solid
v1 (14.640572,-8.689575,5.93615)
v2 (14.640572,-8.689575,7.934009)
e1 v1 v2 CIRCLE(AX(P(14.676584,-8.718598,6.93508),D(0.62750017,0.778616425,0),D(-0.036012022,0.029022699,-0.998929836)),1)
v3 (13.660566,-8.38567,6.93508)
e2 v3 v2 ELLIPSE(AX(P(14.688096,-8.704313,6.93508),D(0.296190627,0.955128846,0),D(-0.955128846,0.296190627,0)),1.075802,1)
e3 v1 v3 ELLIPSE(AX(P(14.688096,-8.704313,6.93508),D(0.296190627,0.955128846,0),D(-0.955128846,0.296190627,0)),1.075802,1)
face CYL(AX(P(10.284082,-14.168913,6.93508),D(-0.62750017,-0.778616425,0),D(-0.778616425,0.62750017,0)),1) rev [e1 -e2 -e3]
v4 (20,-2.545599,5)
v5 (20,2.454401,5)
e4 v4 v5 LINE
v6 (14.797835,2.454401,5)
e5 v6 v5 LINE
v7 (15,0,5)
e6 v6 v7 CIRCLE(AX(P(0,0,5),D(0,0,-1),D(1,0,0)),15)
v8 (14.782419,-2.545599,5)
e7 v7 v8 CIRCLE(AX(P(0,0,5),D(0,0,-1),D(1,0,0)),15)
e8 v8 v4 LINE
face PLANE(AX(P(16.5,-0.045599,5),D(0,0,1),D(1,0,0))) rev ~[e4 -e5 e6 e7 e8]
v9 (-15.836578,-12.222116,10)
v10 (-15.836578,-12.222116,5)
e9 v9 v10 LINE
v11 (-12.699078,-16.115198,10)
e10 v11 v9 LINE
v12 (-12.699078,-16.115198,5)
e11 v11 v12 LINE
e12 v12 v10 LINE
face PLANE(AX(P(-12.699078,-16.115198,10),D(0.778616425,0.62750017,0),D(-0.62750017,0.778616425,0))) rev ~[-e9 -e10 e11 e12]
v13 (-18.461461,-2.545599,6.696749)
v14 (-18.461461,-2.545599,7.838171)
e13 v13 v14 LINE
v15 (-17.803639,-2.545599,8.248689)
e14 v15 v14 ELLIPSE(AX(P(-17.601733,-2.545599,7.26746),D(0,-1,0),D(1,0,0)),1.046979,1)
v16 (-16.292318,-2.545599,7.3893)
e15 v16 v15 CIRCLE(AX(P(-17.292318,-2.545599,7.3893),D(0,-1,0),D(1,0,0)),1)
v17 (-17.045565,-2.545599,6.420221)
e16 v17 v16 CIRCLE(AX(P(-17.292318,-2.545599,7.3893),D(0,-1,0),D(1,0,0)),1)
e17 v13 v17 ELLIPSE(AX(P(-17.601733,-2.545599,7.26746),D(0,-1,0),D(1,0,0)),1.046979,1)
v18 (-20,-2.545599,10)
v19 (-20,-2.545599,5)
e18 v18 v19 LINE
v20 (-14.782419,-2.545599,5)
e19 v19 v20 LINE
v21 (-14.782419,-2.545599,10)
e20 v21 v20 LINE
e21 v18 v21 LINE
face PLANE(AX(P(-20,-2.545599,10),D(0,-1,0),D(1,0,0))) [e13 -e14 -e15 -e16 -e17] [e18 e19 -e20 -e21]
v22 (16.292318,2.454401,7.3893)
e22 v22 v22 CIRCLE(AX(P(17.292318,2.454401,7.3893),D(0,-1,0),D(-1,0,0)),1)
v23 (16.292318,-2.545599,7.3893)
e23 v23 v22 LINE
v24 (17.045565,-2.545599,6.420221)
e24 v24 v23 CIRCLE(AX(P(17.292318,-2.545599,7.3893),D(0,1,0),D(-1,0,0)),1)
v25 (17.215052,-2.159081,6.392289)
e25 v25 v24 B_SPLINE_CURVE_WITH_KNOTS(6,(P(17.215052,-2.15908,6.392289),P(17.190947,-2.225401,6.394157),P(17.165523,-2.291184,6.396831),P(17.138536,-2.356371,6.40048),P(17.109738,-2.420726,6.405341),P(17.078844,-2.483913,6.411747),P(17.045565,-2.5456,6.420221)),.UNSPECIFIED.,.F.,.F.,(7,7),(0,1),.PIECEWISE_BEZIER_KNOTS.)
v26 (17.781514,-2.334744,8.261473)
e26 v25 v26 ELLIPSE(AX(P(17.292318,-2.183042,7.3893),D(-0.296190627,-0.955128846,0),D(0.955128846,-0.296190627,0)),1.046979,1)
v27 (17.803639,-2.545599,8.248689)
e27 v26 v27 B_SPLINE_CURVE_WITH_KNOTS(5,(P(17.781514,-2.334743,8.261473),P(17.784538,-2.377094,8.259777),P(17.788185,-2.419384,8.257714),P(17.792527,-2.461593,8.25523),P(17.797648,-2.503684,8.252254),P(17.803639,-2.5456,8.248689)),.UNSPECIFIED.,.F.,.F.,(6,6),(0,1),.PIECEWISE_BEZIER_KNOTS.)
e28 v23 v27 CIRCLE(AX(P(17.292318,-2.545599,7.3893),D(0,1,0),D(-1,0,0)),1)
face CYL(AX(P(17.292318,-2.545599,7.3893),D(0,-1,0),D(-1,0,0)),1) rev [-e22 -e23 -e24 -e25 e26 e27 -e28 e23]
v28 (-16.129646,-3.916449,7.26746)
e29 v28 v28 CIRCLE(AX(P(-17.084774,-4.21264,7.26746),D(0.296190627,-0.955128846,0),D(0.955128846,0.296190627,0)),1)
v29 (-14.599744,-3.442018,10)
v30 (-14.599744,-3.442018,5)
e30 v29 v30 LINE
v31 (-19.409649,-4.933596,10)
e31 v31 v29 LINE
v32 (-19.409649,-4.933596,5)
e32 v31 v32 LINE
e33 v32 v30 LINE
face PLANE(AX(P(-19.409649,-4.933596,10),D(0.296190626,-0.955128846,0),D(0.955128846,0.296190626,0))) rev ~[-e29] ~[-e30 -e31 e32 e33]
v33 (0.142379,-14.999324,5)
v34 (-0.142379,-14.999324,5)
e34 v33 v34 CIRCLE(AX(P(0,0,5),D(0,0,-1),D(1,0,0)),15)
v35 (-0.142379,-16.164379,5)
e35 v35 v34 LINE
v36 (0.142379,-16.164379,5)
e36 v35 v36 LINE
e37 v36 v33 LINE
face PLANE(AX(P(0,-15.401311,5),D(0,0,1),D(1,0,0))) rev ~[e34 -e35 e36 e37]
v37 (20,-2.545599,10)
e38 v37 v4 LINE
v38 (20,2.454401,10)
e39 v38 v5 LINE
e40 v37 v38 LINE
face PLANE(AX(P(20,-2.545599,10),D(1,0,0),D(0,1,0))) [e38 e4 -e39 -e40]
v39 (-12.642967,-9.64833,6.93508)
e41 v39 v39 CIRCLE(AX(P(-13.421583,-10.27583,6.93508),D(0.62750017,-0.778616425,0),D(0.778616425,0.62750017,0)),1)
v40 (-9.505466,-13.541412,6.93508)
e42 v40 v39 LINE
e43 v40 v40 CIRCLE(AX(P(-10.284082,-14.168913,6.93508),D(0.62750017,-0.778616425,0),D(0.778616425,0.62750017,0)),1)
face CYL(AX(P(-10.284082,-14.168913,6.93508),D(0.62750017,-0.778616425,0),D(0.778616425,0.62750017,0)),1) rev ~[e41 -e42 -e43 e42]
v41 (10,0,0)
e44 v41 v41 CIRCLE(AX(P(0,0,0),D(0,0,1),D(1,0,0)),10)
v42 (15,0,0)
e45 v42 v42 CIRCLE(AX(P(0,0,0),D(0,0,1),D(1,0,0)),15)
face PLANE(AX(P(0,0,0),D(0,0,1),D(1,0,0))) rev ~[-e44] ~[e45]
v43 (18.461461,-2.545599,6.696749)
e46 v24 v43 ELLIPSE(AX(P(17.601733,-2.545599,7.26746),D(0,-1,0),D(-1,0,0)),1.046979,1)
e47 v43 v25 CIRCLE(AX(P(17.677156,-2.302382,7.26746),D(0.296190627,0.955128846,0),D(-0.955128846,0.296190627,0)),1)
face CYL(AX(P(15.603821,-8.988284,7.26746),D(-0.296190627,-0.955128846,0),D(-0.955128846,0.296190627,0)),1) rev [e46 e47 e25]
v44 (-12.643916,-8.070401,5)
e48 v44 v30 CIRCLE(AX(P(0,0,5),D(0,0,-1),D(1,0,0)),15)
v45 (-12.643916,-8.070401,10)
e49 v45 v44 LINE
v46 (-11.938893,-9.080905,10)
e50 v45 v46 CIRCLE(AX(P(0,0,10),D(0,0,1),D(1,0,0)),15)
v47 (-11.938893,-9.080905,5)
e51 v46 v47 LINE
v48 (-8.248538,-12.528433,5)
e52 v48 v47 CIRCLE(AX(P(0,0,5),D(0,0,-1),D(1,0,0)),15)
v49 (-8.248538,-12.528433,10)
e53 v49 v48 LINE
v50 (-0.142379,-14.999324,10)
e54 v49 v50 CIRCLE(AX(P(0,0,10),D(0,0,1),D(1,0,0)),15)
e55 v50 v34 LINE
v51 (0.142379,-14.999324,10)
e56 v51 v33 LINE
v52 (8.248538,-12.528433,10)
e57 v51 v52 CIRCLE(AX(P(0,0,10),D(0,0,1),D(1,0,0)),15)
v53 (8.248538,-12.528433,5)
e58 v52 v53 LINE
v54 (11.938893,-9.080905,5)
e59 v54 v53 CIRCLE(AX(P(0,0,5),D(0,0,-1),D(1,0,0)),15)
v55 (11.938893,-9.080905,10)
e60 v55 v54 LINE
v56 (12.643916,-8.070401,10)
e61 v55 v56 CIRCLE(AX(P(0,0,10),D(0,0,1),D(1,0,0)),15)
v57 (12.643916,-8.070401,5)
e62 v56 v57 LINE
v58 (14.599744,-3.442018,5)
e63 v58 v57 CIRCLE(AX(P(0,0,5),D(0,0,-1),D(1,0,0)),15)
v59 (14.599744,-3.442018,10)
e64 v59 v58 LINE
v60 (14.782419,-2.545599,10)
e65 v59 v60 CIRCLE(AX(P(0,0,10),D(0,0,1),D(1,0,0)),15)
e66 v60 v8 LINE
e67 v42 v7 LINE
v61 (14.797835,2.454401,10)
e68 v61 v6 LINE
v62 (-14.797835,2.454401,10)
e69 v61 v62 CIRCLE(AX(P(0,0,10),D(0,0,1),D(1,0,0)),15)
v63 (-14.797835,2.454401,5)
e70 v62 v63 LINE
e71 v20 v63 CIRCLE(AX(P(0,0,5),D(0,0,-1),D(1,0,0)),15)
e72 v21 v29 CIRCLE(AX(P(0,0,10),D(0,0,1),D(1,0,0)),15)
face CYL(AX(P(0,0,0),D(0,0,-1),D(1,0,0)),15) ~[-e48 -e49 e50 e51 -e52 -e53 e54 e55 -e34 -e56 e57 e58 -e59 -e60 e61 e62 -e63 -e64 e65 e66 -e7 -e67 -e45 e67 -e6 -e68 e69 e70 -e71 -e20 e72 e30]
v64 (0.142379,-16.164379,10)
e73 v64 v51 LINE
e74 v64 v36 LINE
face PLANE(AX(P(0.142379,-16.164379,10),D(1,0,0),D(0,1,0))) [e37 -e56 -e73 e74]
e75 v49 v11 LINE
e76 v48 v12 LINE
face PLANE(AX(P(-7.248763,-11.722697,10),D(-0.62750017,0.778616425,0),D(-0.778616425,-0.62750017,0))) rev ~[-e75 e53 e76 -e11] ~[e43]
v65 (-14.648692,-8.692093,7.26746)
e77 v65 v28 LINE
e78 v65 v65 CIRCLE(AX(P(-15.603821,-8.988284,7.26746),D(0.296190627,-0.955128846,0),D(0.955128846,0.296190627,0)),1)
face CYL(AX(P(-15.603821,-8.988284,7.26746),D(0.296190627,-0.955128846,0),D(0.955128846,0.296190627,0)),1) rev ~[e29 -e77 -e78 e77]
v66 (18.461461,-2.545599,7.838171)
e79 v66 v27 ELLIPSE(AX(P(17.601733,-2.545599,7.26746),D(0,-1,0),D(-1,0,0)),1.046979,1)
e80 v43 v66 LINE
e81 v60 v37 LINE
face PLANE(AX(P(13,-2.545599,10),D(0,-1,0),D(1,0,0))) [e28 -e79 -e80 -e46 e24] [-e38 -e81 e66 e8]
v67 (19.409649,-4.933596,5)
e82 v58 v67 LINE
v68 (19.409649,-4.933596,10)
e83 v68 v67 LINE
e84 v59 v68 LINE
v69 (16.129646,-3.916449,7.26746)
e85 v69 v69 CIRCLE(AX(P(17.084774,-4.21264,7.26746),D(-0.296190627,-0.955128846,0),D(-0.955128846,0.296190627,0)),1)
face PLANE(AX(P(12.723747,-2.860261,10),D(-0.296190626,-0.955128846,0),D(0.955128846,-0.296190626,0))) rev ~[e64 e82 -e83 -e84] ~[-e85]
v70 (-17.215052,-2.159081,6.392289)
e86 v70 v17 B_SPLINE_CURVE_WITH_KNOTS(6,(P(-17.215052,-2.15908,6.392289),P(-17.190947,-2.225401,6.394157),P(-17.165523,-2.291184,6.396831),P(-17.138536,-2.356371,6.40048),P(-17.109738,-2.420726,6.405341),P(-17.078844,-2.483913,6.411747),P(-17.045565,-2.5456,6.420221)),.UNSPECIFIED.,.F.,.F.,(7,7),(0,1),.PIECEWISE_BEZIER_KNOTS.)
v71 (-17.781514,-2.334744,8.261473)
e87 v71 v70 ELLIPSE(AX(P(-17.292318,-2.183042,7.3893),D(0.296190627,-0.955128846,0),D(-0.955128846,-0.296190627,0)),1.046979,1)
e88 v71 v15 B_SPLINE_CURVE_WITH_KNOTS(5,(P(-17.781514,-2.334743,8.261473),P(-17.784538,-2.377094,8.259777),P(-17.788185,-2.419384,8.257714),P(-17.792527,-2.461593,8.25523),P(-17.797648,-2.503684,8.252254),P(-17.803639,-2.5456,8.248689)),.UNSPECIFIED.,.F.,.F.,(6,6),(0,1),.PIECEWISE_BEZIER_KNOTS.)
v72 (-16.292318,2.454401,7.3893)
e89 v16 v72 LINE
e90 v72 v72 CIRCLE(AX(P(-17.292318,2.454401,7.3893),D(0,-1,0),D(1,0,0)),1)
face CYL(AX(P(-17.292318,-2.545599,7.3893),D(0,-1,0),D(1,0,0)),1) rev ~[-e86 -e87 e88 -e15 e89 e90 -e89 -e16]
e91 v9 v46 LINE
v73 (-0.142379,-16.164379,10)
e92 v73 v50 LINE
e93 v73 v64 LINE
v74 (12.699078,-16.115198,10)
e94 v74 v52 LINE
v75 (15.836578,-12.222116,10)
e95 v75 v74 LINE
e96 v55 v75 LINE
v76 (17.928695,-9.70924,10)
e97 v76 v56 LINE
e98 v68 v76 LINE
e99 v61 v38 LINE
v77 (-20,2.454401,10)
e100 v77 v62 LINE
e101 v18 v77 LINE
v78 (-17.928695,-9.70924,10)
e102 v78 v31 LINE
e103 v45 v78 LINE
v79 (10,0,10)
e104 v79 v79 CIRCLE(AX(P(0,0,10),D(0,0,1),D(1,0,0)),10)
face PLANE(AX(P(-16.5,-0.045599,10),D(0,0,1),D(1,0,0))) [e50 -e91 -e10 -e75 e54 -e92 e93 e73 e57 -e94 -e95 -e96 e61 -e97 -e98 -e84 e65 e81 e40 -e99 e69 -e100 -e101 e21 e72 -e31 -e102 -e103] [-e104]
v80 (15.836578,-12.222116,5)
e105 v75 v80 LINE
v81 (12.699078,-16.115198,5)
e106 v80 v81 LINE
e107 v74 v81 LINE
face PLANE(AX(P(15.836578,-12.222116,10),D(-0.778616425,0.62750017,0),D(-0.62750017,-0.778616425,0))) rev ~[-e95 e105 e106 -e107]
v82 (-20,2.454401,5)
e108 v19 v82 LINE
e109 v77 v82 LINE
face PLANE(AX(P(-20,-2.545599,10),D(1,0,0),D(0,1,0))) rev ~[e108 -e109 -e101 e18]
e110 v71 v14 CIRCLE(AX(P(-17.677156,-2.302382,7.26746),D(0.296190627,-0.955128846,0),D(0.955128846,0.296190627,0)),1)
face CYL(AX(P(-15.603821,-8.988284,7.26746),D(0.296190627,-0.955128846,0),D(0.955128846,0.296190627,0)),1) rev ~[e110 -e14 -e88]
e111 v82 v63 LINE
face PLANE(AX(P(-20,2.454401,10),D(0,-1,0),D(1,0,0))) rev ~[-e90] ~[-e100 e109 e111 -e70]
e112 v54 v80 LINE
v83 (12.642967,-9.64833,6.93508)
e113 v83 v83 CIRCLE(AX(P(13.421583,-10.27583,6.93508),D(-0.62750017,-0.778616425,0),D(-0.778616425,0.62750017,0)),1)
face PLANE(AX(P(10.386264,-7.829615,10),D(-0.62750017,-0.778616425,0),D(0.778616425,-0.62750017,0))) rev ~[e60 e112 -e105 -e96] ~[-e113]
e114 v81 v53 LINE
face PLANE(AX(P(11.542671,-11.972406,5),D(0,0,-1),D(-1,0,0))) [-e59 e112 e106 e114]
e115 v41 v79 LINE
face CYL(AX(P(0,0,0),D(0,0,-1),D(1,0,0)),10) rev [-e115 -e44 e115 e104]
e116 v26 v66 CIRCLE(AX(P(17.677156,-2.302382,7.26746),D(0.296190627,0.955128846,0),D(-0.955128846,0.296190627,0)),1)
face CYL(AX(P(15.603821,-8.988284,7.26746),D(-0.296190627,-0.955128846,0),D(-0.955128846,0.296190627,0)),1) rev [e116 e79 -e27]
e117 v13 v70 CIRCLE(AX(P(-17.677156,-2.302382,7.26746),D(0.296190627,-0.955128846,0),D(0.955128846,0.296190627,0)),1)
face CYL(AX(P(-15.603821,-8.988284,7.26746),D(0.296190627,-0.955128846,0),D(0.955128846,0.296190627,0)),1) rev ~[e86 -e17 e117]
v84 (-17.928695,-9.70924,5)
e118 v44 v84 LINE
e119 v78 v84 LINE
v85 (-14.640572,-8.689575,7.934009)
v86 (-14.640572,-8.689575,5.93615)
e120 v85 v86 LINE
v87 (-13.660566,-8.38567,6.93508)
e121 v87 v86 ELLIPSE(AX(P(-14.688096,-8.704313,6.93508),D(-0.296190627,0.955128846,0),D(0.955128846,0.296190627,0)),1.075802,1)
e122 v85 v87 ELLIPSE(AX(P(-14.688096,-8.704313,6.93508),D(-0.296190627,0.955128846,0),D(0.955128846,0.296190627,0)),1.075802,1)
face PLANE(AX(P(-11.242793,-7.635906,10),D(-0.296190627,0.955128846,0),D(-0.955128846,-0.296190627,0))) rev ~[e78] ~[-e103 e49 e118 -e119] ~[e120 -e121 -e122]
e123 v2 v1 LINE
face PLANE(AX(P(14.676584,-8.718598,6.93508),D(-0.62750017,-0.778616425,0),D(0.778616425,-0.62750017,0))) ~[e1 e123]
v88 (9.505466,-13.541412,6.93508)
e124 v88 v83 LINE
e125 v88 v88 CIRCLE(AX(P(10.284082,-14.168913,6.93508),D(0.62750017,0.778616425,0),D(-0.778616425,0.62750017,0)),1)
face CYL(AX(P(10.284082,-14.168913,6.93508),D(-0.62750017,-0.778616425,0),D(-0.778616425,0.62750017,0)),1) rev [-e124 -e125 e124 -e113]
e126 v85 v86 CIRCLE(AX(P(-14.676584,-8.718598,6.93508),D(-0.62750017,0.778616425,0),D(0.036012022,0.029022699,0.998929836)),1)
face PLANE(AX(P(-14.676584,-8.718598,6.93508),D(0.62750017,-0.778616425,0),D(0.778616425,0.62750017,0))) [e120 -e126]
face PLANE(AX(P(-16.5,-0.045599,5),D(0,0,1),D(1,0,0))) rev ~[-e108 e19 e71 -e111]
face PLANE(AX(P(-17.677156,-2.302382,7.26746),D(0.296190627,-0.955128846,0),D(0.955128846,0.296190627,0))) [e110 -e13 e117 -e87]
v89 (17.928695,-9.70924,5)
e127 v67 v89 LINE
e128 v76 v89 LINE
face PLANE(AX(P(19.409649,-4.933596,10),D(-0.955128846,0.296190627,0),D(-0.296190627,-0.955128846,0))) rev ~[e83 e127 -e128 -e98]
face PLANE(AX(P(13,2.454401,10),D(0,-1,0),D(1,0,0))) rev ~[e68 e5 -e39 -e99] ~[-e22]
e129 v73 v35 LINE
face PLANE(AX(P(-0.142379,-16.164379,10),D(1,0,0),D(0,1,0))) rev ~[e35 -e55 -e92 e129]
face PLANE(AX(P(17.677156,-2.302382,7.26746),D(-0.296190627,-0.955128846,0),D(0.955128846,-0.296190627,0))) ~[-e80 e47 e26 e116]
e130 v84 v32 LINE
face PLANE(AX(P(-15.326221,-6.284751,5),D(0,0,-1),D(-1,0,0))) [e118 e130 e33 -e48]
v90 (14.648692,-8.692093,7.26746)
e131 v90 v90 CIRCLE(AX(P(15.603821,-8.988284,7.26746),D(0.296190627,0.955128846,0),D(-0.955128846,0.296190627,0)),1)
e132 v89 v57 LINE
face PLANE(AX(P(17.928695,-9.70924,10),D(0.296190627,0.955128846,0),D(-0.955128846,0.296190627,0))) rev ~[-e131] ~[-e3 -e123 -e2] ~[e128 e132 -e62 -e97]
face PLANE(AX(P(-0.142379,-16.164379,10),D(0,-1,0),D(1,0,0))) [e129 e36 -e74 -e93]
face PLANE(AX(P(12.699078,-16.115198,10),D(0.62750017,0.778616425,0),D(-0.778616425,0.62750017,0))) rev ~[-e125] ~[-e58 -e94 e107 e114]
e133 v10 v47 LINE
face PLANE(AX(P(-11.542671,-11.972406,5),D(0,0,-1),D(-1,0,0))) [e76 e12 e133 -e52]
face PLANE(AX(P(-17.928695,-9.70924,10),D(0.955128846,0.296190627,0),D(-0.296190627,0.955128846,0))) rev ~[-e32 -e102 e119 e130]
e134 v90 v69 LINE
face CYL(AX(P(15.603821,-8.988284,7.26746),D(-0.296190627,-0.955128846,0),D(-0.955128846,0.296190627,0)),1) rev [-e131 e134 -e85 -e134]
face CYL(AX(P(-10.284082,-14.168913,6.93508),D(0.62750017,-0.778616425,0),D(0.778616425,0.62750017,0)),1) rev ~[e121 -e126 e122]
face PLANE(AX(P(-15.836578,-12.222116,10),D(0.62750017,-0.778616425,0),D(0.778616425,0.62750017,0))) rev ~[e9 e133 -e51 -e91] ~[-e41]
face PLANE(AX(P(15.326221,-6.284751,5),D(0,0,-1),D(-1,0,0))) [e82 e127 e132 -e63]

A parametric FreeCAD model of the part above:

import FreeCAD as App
import Part
import Sketcher
Q = App.Units.Quantity


def add_polygon(sketch, points):
    """Adds a closed chain of lines whose ends are joined by coincident constraints."""
    first, n = sketch.GeometryCount, len(points)
    for a, b in zip(points, points[1:] + points[:1]):
        sketch.addGeometry(Part.LineSegment(App.Vector(*a, 0), App.Vector(*b, 0)), False)
    for i in range(n):
        sketch.addConstraint(Sketcher.Constraint("Coincident", first + i, 2, first + (i + 1) % n, 1))

doc = App.newDocument("Part")
body = doc.addObject("PartDesign::Body", "Body")

sketch1 = doc.addObject("Sketcher::SketchObject", "Sketch")
body.addObject(sketch1)
sketch1.AttachmentSupport = (doc.XY_Plane, [""])
sketch1.MapMode = "FlatFace"
sketch1.addGeometry([
    Part.Circle(App.Vector(0, 0, 0), App.Vector(0, 0, 1), 15),
    Part.Circle(App.Vector(0, 0, 0), App.Vector(0, 0, 1), 10),
], False)
sketch1.addConstraint([
    Sketcher.Constraint("Coincident", 0, 3, -1, 1),
    Sketcher.Constraint("Coincident", 1, 3, -1, 1),
    Sketcher.Constraint("Diameter", 0, Q("30 mm")),
    Sketcher.Constraint("Diameter", 1, Q("20 mm")),
])
pad1 = doc.addObject("PartDesign::Pad", "Pad")
body.addObject(pad1)
pad1.Profile = sketch1
pad1.Length = 10

sketch2 = doc.addObject("Sketcher::SketchObject", "Sketch001")
body.addObject(sketch2)
sketch2.AttachmentSupport = (doc.XY_Plane, [""])
sketch2.MapMode = "FlatFace"
sketch2.AttachmentOffset = App.Placement(App.Vector(0, 0, 10), App.Rotation())
add_polygon(sketch2, [(-20, 2.45), (-20, -2.55), (-13, -2.55), (-13, 2.45)])
add_polygon(sketch2, [(-11.24, -7.64), (-12.72, -2.86), (-19.41, -4.93), (-17.93, -9.71)])
add_polygon(sketch2, [(-7.25, -11.72), (-10.39, -7.83), (-15.84, -12.22), (-12.7, -16.12)])
add_polygon(sketch2, [(12.7, -16.12), (15.84, -12.22), (10.39, -7.83), (7.25, -11.72)])
add_polygon(sketch2, [(17.93, -9.71), (19.41, -4.93), (12.72, -2.86), (11.24, -7.64)])
add_polygon(sketch2, [(13, 2.45), (13, -2.55), (20, -2.55), (20, 2.45)])
add_polygon(sketch2, [(-0.14, -14.64), (-0.14, -16.16), (0.14, -16.16), (0.14, -14.64)])
sketch2.addConstraint([
    Sketcher.Constraint("Vertical", 0),
    Sketcher.Constraint("Horizontal", 1),
    Sketcher.Constraint("Vertical", 2),
    Sketcher.Constraint("Horizontal", 3),
    Sketcher.Constraint("Vertical", 20),
    Sketcher.Constraint("Horizontal", 21),
    Sketcher.Constraint("Vertical", 22),
    Sketcher.Constraint("Horizontal", 23),
    Sketcher.Constraint("Vertical", 24),
    Sketcher.Constraint("Horizontal", 25),
    Sketcher.Constraint("Vertical", 26),
    Sketcher.Constraint("Horizontal", 27),
    Sketcher.Constraint("Symmetric", 9, 2, 12, 2, -2),
    Sketcher.Constraint("Symmetric", 8, 2, 13, 2, -2),
    Sketcher.Constraint("Symmetric", 11, 2, 14, 2, -2),
    Sketcher.Constraint("Symmetric", 10, 2, 15, 2, -2),
    Sketcher.Constraint("Symmetric", 5, 2, 16, 2, -2),
    Sketcher.Constraint("Symmetric", 4, 2, 17, 2, -2),
    Sketcher.Constraint("Symmetric", 7, 2, 18, 2, -2),
    Sketcher.Constraint("Symmetric", 6, 2, 19, 2, -2),
    Sketcher.Constraint("Symmetric", 1, 2, 20, 2, -2),
    Sketcher.Constraint("Symmetric", 3, 2, 22, 2, -2),
    Sketcher.Constraint("Perpendicular", 4, 5),
    Sketcher.Constraint("Perpendicular", 5, 6),
    Sketcher.Constraint("Perpendicular", 6, 7),
    Sketcher.Constraint("Perpendicular", 8, 9),
    Sketcher.Constraint("Perpendicular", 9, 10),
    Sketcher.Constraint("Perpendicular", 10, 11),
    Sketcher.Constraint("Equal", 6, 8),
    Sketcher.Constraint("Equal", 7, 9),
    Sketcher.Constraint("DistanceX", 1, 1, 1, 2, Q("7 mm")),
    Sketcher.Constraint("DistanceY", 0, 2, 0, 1, Q("5 mm")),
    Sketcher.Constraint("Distance", 4, Q("5 mm")),
    Sketcher.Constraint("Distance", 5, Q("7 mm")),
    Sketcher.Constraint("DistanceX", 0, 2, -1, 1, Q("20 mm")),
    Sketcher.Constraint("DistanceX", 25, 1, 25, 2, Q("0.284758 mm")),
    Sketcher.Constraint("DistanceY", 0, 2, -1, 1, Q("2.545599 mm")),
    Sketcher.Constraint("DistanceY", 10, 2, -1, 1, Q("16.115198 mm")),
    Sketcher.Constraint("DistanceX", 5, 2, 4, 2, Q("6.685902 mm")),
    Sketcher.Constraint("DistanceY", 9, 2, 8, 2, Q("4.392501 mm")),
    Sketcher.Constraint("DistanceY", 14, 2, 16, 2, Q("6.789101 mm")),
    Sketcher.Constraint("DistanceX", 10, 2, 24, 2, Q("12.556699 mm")),
    Sketcher.Constraint("DistanceX", 25, 2, 15, 2, Q("12.556699 mm")),
    Sketcher.Constraint("DistanceY", 24, 2, 24, 1, Q("1.526136 mm")),
    Sketcher.Constraint("DistanceX", 5, 2, -1, 1, Q("19.409649 mm")),
    Sketcher.Constraint("DistanceY", 24, 2, -1, 1, Q("16.164379 mm")),
])
pad2 = doc.addObject("PartDesign::Pad", "Pad001")
body.addObject(pad2)
pad2.Profile = sketch2
pad2.Length = 5
pad2.Reversed = True

sketch3 = doc.addObject("Sketcher::SketchObject", "Sketch002")
body.addObject(sketch3)
sketch3.AttachmentSupport = (doc.XZ_Plane, [""])
sketch3.MapMode = "FlatFace"
sketch3.AttachmentOffset = App.Placement(App.Vector(0, 0, 2.545599), App.Rotation())
sketch3.addGeometry(Part.Circle(App.Vector(-17.3, 7.4, 0), App.Vector(0, 0, 1), 1), False)
sketch3.addConstraint([
    Sketcher.Constraint("Diameter", 0, Q("2 mm")),
    Sketcher.Constraint("DistanceY", -1, 1, 0, 3, Q("7.3893 mm")),
    Sketcher.Constraint("DistanceX", 0, 3, -1, 1, Q("17.292318 mm")),
])
pocket1 = doc.addObject("PartDesign::Pocket", "Pocket")
body.addObject(pocket1)
pocket1.Profile = sketch3
pocket1.Length = 10

sketch4 = doc.addObject("Sketcher::SketchObject", "Sketch003")
body.addObject(sketch4)
sketch4.Placement = App.Placement(App.Vector(1.173882, -3.785427, 0), App.Rotation(App.Vector(0.955128846, 0.296190627, 0), App.Vector(0, 0, 1), App.Vector(0.296190627, -0.955128846, 0), "ZXY"))
sketch4.addGeometry(Part.Circle(App.Vector(-17.6, 7.3, 0), App.Vector(0, 0, 1), 1), False)
sketch4.addConstraint([
    Sketcher.Constraint("Diameter", 0, Q("2 mm")),
    Sketcher.Constraint("DistanceY", -1, 1, 0, 3, Q("7.26746 mm")),
    Sketcher.Constraint("DistanceX", 0, 3, -1, 1, Q("17.565905 mm")),
])
pocket2 = doc.addObject("PartDesign::Pocket", "Pocket001")
body.addObject(pocket2)
pocket2.Profile = sketch4
pocket2.Length = 7

sketch5 = doc.addObject("Sketcher::SketchObject", "Sketch004")
body.addObject(sketch5)
sketch5.Placement = App.Placement(App.Vector(2.873251, -3.565195, 0), App.Rotation(App.Vector(0.778616425, 0.62750017, 0), App.Vector(0, 0, 1.000000001), App.Vector(0.62750017, -0.778616425, 0), "ZXY"))
sketch5.addGeometry(Part.Circle(App.Vector(-16.9, 6.9, 0), App.Vector(0, 0, 1), 1), False)
sketch5.addConstraint([
    Sketcher.Constraint("Diameter", 0, Q("2 mm")),
    Sketcher.Constraint("DistanceX", 0, 3, -1, 1, Q("16.898351 mm")),
    Sketcher.Constraint("DistanceY", -1, 1, 0, 3, Q("6.93508 mm")),
])
pocket3 = doc.addObject("PartDesign::Pocket", "Pocket002")
body.addObject(pocket3)
pocket3.Profile = sketch5
pocket3.Length = 7
doc.recompute()

mirrored = doc.addObject("PartDesign::Mirrored", "Mirrored")
body.addObject(mirrored)
mirrored.Originals = [pocket1, pocket2, pocket3]
mirrored.MirrorPlane = (doc.YZ_Plane, [""])
body.Tip = mirrored

doc.recompute()
